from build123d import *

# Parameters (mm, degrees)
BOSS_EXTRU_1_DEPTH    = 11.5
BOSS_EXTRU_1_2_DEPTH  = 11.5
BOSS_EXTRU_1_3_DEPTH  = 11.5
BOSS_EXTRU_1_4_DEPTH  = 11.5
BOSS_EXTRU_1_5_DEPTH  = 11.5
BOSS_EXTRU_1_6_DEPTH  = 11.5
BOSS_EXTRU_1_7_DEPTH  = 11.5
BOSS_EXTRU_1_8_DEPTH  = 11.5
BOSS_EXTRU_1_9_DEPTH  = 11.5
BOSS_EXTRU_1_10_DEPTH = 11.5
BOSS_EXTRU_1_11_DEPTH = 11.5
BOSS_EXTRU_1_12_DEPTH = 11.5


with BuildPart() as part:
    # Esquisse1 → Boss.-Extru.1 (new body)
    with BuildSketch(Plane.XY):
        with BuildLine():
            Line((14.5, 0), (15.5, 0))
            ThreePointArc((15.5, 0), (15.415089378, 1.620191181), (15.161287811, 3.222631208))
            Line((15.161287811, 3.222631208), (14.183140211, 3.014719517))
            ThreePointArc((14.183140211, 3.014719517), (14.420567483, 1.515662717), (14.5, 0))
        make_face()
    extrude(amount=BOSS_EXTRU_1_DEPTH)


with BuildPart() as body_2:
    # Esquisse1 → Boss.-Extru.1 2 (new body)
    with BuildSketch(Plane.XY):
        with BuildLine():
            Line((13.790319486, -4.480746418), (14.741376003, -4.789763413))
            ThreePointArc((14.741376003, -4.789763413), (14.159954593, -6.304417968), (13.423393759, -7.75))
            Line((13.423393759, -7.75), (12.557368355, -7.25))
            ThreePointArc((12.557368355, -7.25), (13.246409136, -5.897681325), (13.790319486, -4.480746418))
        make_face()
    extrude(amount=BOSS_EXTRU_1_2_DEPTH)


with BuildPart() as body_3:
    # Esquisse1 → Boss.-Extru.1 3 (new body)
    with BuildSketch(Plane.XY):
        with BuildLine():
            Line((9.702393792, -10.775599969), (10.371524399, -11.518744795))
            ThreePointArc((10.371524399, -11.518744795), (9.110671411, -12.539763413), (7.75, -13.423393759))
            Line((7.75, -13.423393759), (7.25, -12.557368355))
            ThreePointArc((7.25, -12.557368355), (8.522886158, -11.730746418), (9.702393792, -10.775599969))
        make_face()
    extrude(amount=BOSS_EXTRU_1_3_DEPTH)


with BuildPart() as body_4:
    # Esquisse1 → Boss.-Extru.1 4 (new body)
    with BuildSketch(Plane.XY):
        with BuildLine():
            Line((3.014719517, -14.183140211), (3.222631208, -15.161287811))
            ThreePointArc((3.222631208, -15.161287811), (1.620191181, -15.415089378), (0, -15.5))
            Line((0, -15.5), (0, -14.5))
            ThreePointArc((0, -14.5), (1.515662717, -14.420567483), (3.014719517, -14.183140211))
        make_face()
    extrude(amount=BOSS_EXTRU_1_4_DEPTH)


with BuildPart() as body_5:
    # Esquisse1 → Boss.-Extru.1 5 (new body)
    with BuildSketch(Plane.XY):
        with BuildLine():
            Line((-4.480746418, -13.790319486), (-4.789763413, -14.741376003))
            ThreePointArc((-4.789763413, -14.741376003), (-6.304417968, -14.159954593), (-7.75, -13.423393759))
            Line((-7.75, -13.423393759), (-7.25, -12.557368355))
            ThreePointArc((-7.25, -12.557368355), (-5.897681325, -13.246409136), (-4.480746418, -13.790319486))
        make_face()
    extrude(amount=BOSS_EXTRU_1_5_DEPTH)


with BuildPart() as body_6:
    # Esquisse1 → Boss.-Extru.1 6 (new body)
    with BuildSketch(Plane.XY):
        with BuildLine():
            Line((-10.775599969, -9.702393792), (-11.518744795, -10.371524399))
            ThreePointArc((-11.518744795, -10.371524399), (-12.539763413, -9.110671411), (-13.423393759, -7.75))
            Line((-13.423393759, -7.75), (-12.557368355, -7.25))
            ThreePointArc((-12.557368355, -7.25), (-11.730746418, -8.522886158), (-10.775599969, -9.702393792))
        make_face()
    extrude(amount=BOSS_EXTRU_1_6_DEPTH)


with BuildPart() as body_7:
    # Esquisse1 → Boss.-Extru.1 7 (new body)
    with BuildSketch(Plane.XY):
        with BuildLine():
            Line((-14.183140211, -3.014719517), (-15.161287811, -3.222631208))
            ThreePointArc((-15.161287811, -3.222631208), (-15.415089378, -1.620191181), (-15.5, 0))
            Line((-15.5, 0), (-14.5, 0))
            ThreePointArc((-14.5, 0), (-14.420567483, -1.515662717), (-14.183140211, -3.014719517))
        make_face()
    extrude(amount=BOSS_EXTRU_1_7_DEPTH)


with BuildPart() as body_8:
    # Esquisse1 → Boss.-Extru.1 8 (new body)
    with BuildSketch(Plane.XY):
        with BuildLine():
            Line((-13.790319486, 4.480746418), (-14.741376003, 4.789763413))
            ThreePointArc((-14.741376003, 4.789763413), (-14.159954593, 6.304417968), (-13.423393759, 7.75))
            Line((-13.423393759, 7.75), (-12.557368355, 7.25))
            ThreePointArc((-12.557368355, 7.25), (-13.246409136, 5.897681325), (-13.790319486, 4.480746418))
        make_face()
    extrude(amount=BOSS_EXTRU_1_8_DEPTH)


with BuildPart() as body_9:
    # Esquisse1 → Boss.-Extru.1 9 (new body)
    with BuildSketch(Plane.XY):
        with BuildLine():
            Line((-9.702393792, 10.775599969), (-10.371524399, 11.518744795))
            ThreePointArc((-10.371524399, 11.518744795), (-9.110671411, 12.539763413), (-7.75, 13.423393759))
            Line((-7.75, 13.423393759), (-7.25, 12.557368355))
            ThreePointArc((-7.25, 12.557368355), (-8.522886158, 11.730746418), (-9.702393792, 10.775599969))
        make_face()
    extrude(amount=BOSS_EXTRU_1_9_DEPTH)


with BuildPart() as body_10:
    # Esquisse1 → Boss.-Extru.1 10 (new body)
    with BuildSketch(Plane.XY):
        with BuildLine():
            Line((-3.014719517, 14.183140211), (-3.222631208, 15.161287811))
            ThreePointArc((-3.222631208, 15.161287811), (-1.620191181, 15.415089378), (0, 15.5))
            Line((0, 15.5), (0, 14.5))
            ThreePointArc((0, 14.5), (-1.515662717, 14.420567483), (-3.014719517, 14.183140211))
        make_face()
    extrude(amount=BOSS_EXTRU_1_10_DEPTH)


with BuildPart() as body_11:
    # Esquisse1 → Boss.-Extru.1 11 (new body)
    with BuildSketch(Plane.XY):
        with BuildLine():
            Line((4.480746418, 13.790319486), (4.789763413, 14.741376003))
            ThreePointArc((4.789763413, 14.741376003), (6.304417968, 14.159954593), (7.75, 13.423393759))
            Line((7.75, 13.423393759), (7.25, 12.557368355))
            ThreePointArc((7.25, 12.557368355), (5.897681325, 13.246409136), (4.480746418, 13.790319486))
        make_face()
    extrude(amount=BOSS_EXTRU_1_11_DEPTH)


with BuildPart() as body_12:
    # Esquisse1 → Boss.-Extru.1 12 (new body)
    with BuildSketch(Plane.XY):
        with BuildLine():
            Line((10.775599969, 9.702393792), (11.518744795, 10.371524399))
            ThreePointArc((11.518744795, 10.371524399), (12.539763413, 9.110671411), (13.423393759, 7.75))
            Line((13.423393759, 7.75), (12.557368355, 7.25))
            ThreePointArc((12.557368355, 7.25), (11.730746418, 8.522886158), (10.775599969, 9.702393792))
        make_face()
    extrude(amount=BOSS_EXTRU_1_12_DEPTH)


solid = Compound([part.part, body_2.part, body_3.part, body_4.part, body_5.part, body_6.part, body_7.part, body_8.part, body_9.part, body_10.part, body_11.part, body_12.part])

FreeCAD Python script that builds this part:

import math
import FreeCAD as App
import Part
import Sketcher
Q = App.Units.Quantity

doc = App.newDocument("Part")
body = doc.addObject("PartDesign::Body", "Body")

# Sketch on XY plane
sketch1 = body.newObject("Sketcher::SketchObject", "Sketch")
sketch1.AttachmentSupport = (doc.getObject("XY_Plane"), [""])
sketch1.MapMode = "FlatFace"
sketch1.addGeometry(Part.LineSegment(App.Vector(14.5, 0, 0), App.Vector(15.5, 0, 0)), False)
sketch1.addGeometry(Part.ArcOfCircle(Part.Circle(App.Vector(0, 0, 0), App.Vector(0, 0, 1), 15.5), math.radians(0), math.radians(12)), False)
sketch1.addGeometry(Part.LineSegment(App.Vector(15.2, 3.2, 0), App.Vector(14.2, 3, 0)), False)
sketch1.addGeometry(Part.ArcOfCircle(Part.Circle(App.Vector(0, 0, 0), App.Vector(0, 0, 1), 14.5), math.radians(0), math.radians(12)), False)
sketch1.addConstraint(Sketcher.Constraint("Coincident", 0, 2, 1, 1))
sketch1.addConstraint(Sketcher.Constraint("Coincident", 1, 2, 2, 1))
sketch1.addConstraint(Sketcher.Constraint("Coincident", 2, 2, 3, 2))
sketch1.addConstraint(Sketcher.Constraint("Coincident", 3, 1, 0, 1))
sketch1.addConstraint(Sketcher.Constraint("Horizontal", 0))
sketch1.addConstraint(Sketcher.Constraint("Coincident", 1, 3, -1, 1))
sketch1.addConstraint(Sketcher.Constraint("Coincident", 3, 3, -1, 1))
sketch1.addConstraint(Sketcher.Constraint("PointOnObject", 0, 2, -1))
sketch1.addConstraint(Sketcher.Constraint("Radius", 1, 15.5))
sketch1.addConstraint(Sketcher.Constraint("Radius", 3, 14.5))
sketch1.addConstraint(Sketcher.Constraint("Angle", 2, Q("-168 deg")))
sketch1.addConstraint(Sketcher.Constraint("DistanceY", -1, 1, 1, 2, 3.222631))
pad1 = body.newObject("PartDesign::Pad", "Pad")
pad1.Profile = sketch1
pad1.Length = 11.5
body2 = doc.addObject("PartDesign::Body", "Body001")

# Sketch on XY plane
sketch2 = body2.newObject("Sketcher::SketchObject", "Sketch001")
sketch2.AttachmentSupport = (doc.getObject("XY_Plane001"), [""])
sketch2.MapMode = "FlatFace"
sketch2.addGeometry(Part.LineSegment(App.Vector(14.7, -4.8, 0), App.Vector(13.8, -4.5, 0)), False)
sketch2.addGeometry(Part.ArcOfCircle(Part.Circle(App.Vector(0, 0, 0), App.Vector(0, 0, 1), 14.5), math.radians(-30), math.radians(-18)), False)
sketch2.addGeometry(Part.LineSegment(App.Vector(12.6, -7.2, 0), App.Vector(13.4, -7.8, 0)), False)
sketch2.addGeometry(Part.ArcOfCircle(Part.Circle(App.Vector(0, 0, 0), App.Vector(0, 0, 1), 15.5), math.radians(-30), math.radians(-18)), False)
sketch2.addConstraint(Sketcher.Constraint("Coincident", 0, 2, 1, 2))
sketch2.addConstraint(Sketcher.Constraint("Coincident", 1, 1, 2, 1))
sketch2.addConstraint(Sketcher.Constraint("Coincident", 2, 2, 3, 1))
sketch2.addConstraint(Sketcher.Constraint("Coincident", 3, 2, 0, 1))
sketch2.addConstraint(Sketcher.Constraint("Coincident", 1, 3, -1, 1))
sketch2.addConstraint(Sketcher.Constraint("Coincident", 3, 3, -1, 1))
sketch2.addConstraint(Sketcher.Constraint("Radius", 1, 14.5))
sketch2.addConstraint(Sketcher.Constraint("Radius", 3, 15.5))
sketch2.addConstraint(Sketcher.Constraint("Angle", 0, Q("162 deg")))
sketch2.addConstraint(Sketcher.Constraint("Angle", 2, Q("-30 deg")))
sketch2.addConstraint(Sketcher.Constraint("DistanceY", 1, 1, -1, 1, 7.25))
sketch2.addConstraint(Sketcher.Constraint("DistanceX", -1, 1, 0, 2, 13.790319))
pad2 = body2.newObject("PartDesign::Pad", "Pad001")
pad2.Profile = sketch2
pad2.Length = 11.5
body3 = doc.addObject("PartDesign::Body", "Body002")

# Sketch on XY plane
sketch3 = body3.newObject("Sketcher::SketchObject", "Sketch002")
sketch3.AttachmentSupport = (doc.getObject("XY_Plane002"), [""])
sketch3.MapMode = "FlatFace"
sketch3.addGeometry(Part.LineSegment(App.Vector(10.4, -11.5, 0), App.Vector(9.7, -10.8, 0)), False)
sketch3.addGeometry(Part.ArcOfCircle(Part.Circle(App.Vector(0, 0, 0), App.Vector(0, 0, 1), 14.5), math.radians(-60), math.radians(-48)), False)
sketch3.addGeometry(Part.LineSegment(App.Vector(7.2, -12.6, 0), App.Vector(7.8, -13.4, 0)), False)
sketch3.addGeometry(Part.ArcOfCircle(Part.Circle(App.Vector(0, 0, 0), App.Vector(0, 0, 1), 15.5), math.radians(-60), math.radians(-48)), False)
sketch3.addConstraint(Sketcher.Constraint("Coincident", 0, 2, 1, 2))
sketch3.addConstraint(Sketcher.Constraint("Coincident", 1, 1, 2, 1))
sketch3.addConstraint(Sketcher.Constraint("Coincident", 2, 2, 3, 1))
sketch3.addConstraint(Sketcher.Constraint("Coincident", 3, 2, 0, 1))
sketch3.addConstraint(Sketcher.Constraint("Coincident", 1, 3, -1, 1))
sketch3.addConstraint(Sketcher.Constraint("Coincident", 3, 3, -1, 1))
sketch3.addConstraint(Sketcher.Constraint("Radius", 1, 14.5))
sketch3.addConstraint(Sketcher.Constraint("Radius", 3, 15.5))
sketch3.addConstraint(Sketcher.Constraint("Angle", 0, Q("132 deg")))
sketch3.addConstraint(Sketcher.Constraint("Angle", 2, Q("-60 deg")))
sketch3.addConstraint(Sketcher.Constraint("DistanceX", -1, 1, 1, 1, 7.25))
sketch3.addConstraint(Sketcher.Constraint("DistanceY", 0, 2, -1, 1, 10.7756))
pad3 = body3.newObject("PartDesign::Pad", "Pad002")
pad3.Profile = sketch3
pad3.Length = 11.5
body4 = doc.addObject("PartDesign::Body", "Body003")

# Sketch on XY plane
sketch4 = body4.newObject("Sketcher::SketchObject", "Sketch003")
sketch4.AttachmentSupport = (doc.getObject("XY_Plane003"), [""])
sketch4.MapMode = "FlatFace"
sketch4.addGeometry(Part.LineSegment(App.Vector(3.2, -15.2, 0), App.Vector(3, -14.2, 0)), False)
sketch4.addGeometry(Part.ArcOfCircle(Part.Circle(App.Vector(0, 0, 0), App.Vector(0, 0, 1), 14.5), math.radians(-90), math.radians(-78)), False)
sketch4.addGeometry(Part.LineSegment(App.Vector(0, -14.5, 0), App.Vector(0, -15.5, 0)), False)
sketch4.addGeometry(Part.ArcOfCircle(Part.Circle(App.Vector(0, 0, 0), App.Vector(0, 0, 1), 15.5), math.radians(-90), math.radians(-78)), False)
sketch4.addConstraint(Sketcher.Constraint("Coincident", 0, 2, 1, 2))
sketch4.addConstraint(Sketcher.Constraint("Coincident", 1, 1, 2, 1))
sketch4.addConstraint(Sketcher.Constraint("Coincident", 2, 2, 3, 1))
sketch4.addConstraint(Sketcher.Constraint("Coincident", 3, 2, 0, 1))
sketch4.addConstraint(Sketcher.Constraint("Vertical", 2))
sketch4.addConstraint(Sketcher.Constraint("Coincident", 1, 3, -1, 1))
sketch4.addConstraint(Sketcher.Constraint("Coincident", 3, 3, -1, 1))
sketch4.addConstraint(Sketcher.Constraint("PointOnObject", 1, 1, -2))
sketch4.addConstraint(Sketcher.Constraint("Radius", 1, 14.5))
sketch4.addConstraint(Sketcher.Constraint("Radius", 3, 15.5))
sketch4.addConstraint(Sketcher.Constraint("Angle", 0, Q("102 deg")))
sketch4.addConstraint(Sketcher.Constraint("DistanceX", -1, 1, 0, 2, 3.01472))
pad4 = body4.newObject("PartDesign::Pad", "Pad003")
pad4.Profile = sketch4
pad4.Length = 11.5
body5 = doc.addObject("PartDesign::Body", "Body004")

# Sketch on XY plane
sketch5 = body5.newObject("Sketcher::SketchObject", "Sketch004")
sketch5.AttachmentSupport = (doc.getObject("XY_Plane004"), [""])
sketch5.MapMode = "FlatFace"
sketch5.addGeometry(Part.LineSegment(App.Vector(-4.8, -14.7, 0), App.Vector(-4.5, -13.8, 0)), False)
sketch5.addGeometry(Part.ArcOfCircle(Part.Circle(App.Vector(0, 0, 0), App.Vector(0, 0, 1), 14.5), math.radians(-120), math.radians(-108)), False)
sketch5.addGeometry(Part.LineSegment(App.Vector(-7.2, -12.6, 0), App.Vector(-7.8, -13.4, 0)), False)
sketch5.addGeometry(Part.ArcOfCircle(Part.Circle(App.Vector(0, 0, 0), App.Vector(0, 0, 1), 15.5), math.radians(-120), math.radians(-108)), False)
sketch5.addConstraint(Sketcher.Constraint("Coincident", 0, 2, 1, 2))
sketch5.addConstraint(Sketcher.Constraint("Coincident", 1, 1, 2, 1))
sketch5.addConstraint(Sketcher.Constraint("Coincident", 2, 2, 3, 1))
sketch5.addConstraint(Sketcher.Constraint("Coincident", 3, 2, 0, 1))
sketch5.addConstraint(Sketcher.Constraint("Coincident", 1, 3, -1, 1))
sketch5.addConstraint(Sketcher.Constraint("Coincident", 3, 3, -1, 1))
sketch5.addConstraint(Sketcher.Constraint("Radius", 1, 14.5))
sketch5.addConstraint(Sketcher.Constraint("Radius", 3, 15.5))
sketch5.addConstraint(Sketcher.Constraint("Angle", 0, Q("72 deg")))
sketch5.addConstraint(Sketcher.Constraint("Angle", 2, Q("-120 deg")))
sketch5.addConstraint(Sketcher.Constraint("DistanceX", 1, 1, -1, 1, 7.25))
sketch5.addConstraint(Sketcher.Constraint("DistanceY", 0, 2, -1, 1, 13.790319))
pad5 = body5.newObject("PartDesign::Pad", "Pad004")
pad5.Profile = sketch5
pad5.Length = 11.5
body6 = doc.addObject("PartDesign::Body", "Body005")

# Sketch on XY plane
sketch6 = body6.newObject("Sketcher::SketchObject", "Sketch005")
sketch6.AttachmentSupport = (doc.getObject("XY_Plane005"), [""])
sketch6.MapMode = "FlatFace"
sketch6.addGeometry(Part.LineSegment(App.Vector(-11.5, -10.4, 0), App.Vector(-10.8, -9.7, 0)), False)
sketch6.addGeometry(Part.ArcOfCircle(Part.Circle(App.Vector(0, 0, 0), App.Vector(0, 0, 1), 14.5), math.radians(-150), math.radians(-138)), False)
sketch6.addGeometry(Part.LineSegment(App.Vector(-12.6, -7.2, 0), App.Vector(-13.4, -7.8, 0)), False)
sketch6.addGeometry(Part.ArcOfCircle(Part.Circle(App.Vector(0, 0, 0), App.Vector(0, 0, 1), 15.5), math.radians(-150), math.radians(-138)), False)
sketch6.addConstraint(Sketcher.Constraint("Coincident", 0, 2, 1, 2))
sketch6.addConstraint(Sketcher.Constraint("Coincident", 1, 1, 2, 1))
sketch6.addConstraint(Sketcher.Constraint("Coincident", 2, 2, 3, 1))
sketch6.addConstraint(Sketcher.Constraint("Coincident", 3, 2, 0, 1))
sketch6.addConstraint(Sketcher.Constraint("Coincident", 1, 3, -1, 1))
sketch6.addConstraint(Sketcher.Constraint("Coincident", 3, 3, -1, 1))
sketch6.addConstraint(Sketcher.Constraint("Radius", 1, 14.5))
sketch6.addConstraint(Sketcher.Constraint("Radius", 3, 15.5))
sketch6.addConstraint(Sketcher.Constraint("Angle", 0, Q("42 deg")))
sketch6.addConstraint(Sketcher.Constraint("Angle", 2, Q("-150 deg")))
sketch6.addConstraint(Sketcher.Constraint("DistanceY", 1, 1, -1, 1, 7.25))
sketch6.addConstraint(Sketcher.Constraint("DistanceX", 0, 2, -1, 1, 10.7756))
pad6 = body6.newObject("PartDesign::Pad", "Pad005")
pad6.Profile = sketch6
pad6.Length = 11.5
body7 = doc.addObject("PartDesign::Body", "Body006")

# Sketch on XY plane
sketch7 = body7.newObject("Sketcher::SketchObject", "Sketch006")
sketch7.AttachmentSupport = (doc.getObject("XY_Plane006"), [""])
sketch7.MapMode = "FlatFace"
sketch7.addGeometry(Part.LineSegment(App.Vector(-15.2, -3.2, 0), App.Vector(-14.2, -3, 0)), False)
sketch7.addGeometry(Part.ArcOfCircle(Part.Circle(App.Vector(0, 0, 0), App.Vector(0, 0, 1), 14.5), math.radians(180), math.radians(192)), False)
sketch7.addGeometry(Part.LineSegment(App.Vector(-14.5, 0, 0), App.Vector(-15.5, 0, 0)), False)
sketch7.addGeometry(Part.ArcOfCircle(Part.Circle(App.Vector(0, 0, 0), App.Vector(0, 0, 1), 15.5), math.radians(-180), math.radians(-168)), False)
sketch7.addConstraint(Sketcher.Constraint("Coincident", 0, 2, 1, 2))
sketch7.addConstraint(Sketcher.Constraint("Coincident", 1, 1, 2, 1))
sketch7.addConstraint(Sketcher.Constraint("Coincident", 2, 2, 3, 1))
sketch7.addConstraint(Sketcher.Constraint("Coincident", 3, 2, 0, 1))
sketch7.addConstraint(Sketcher.Constraint("Horizontal", 2))
sketch7.addConstraint(Sketcher.Constraint("Coincident", 1, 3, -1, 1))
sketch7.addConstraint(Sketcher.Constraint("Coincident", 3, 3, -1, 1))
sketch7.addConstraint(Sketcher.Constraint("PointOnObject", 1, 1, -1))
sketch7.addConstraint(Sketcher.Constraint("Radius", 1, 14.5))
sketch7.addConstraint(Sketcher.Constraint("Radius", 3, 15.5))
sketch7.addConstraint(Sketcher.Constraint("Angle", 0, Q("12 deg")))
sketch7.addConstraint(Sketcher.Constraint("DistanceX", 0, 2, -1, 1, 14.18314))
pad7 = body7.newObject("PartDesign::Pad", "Pad006")
pad7.Profile = sketch7
pad7.Length = 11.5
body8 = doc.addObject("PartDesign::Body", "Body007")

# Sketch on XY plane
sketch8 = body8.newObject("Sketcher::SketchObject", "Sketch007")
sketch8.AttachmentSupport = (doc.getObject("XY_Plane007"), [""])
sketch8.MapMode = "FlatFace"
sketch8.addGeometry(Part.LineSegment(App.Vector(-14.7, 4.8, 0), App.Vector(-13.8, 4.5, 0)), False)
sketch8.addGeometry(Part.ArcOfCircle(Part.Circle(App.Vector(0, 0, 0), App.Vector(0, 0, 1), 14.5), math.radians(150), math.radians(162)), False)
sketch8.addGeometry(Part.LineSegment(App.Vector(-12.6, 7.2, 0), App.Vector(-13.4, 7.8, 0)), False)
sketch8.addGeometry(Part.ArcOfCircle(Part.Circle(App.Vector(0, 0, 0), App.Vector(0, 0, 1), 15.5), math.radians(150), math.radians(162)), False)
sketch8.addConstraint(Sketcher.Constraint("Coincident", 0, 2, 1, 2))
sketch8.addConstraint(Sketcher.Constraint("Coincident", 1, 1, 2, 1))
sketch8.addConstraint(Sketcher.Constraint("Coincident", 2, 2, 3, 1))
sketch8.addConstraint(Sketcher.Constraint("Coincident", 3, 2, 0, 1))
sketch8.addConstraint(Sketcher.Constraint("Coincident", 1, 3, -1, 1))
sketch8.addConstraint(Sketcher.Constraint("Coincident", 3, 3, -1, 1))
sketch8.addConstraint(Sketcher.Constraint("Radius", 1, 14.5))
sketch8.addConstraint(Sketcher.Constraint("Radius", 3, 15.5))
sketch8.addConstraint(Sketcher.Constraint("Angle", 0, Q("-18 deg")))
sketch8.addConstraint(Sketcher.Constraint("Angle", 2, Q("150 deg")))
sketch8.addConstraint(Sketcher.Constraint("DistanceY", -1, 1, 1, 1, 7.25))
sketch8.addConstraint(Sketcher.Constraint("DistanceX", 0, 2, -1, 1, 13.790319))
pad8 = body8.newObject("PartDesign::Pad", "Pad007")
pad8.Profile = sketch8
pad8.Length = 11.5
body9 = doc.addObject("PartDesign::Body", "Body008")

# Sketch on XY plane
sketch9 = body9.newObject("Sketcher::SketchObject", "Sketch008")
sketch9.AttachmentSupport = (doc.getObject("XY_Plane008"), [""])
sketch9.MapMode = "FlatFace"
sketch9.addGeometry(Part.LineSegment(App.Vector(-10.4, 11.5, 0), App.Vector(-9.7, 10.8, 0)), False)
sketch9.addGeometry(Part.ArcOfCircle(Part.Circle(App.Vector(0, 0, 0), App.Vector(0, 0, 1), 14.5), math.radians(120), math.radians(132)), False)
sketch9.addGeometry(Part.LineSegment(App.Vector(-7.2, 12.6, 0), App.Vector(-7.8, 13.4, 0)), False)
sketch9.addGeometry(Part.ArcOfCircle(Part.Circle(App.Vector(0, 0, 0), App.Vector(0, 0, 1), 15.5), math.radians(120), math.radians(132)), False)
sketch9.addConstraint(Sketcher.Constraint("Coincident", 0, 2, 1, 2))
sketch9.addConstraint(Sketcher.Constraint("Coincident", 1, 1, 2, 1))
sketch9.addConstraint(Sketcher.Constraint("Coincident", 2, 2, 3, 1))
sketch9.addConstraint(Sketcher.Constraint("Coincident", 3, 2, 0, 1))
sketch9.addConstraint(Sketcher.Constraint("Coincident", 1, 3, -1, 1))
sketch9.addConstraint(Sketcher.Constraint("Coincident", 3, 3, -1, 1))
sketch9.addConstraint(Sketcher.Constraint("Radius", 1, 14.5))
sketch9.addConstraint(Sketcher.Constraint("Radius", 3, 15.5))
sketch9.addConstraint(Sketcher.Constraint("Angle", 0, Q("-48 deg")))
sketch9.addConstraint(Sketcher.Constraint("Angle", 2, Q("120 deg")))
sketch9.addConstraint(Sketcher.Constraint("DistanceX", 1, 1, -1, 1, 7.25))
sketch9.addConstraint(Sketcher.Constraint("DistanceY", -1, 1, 0, 2, 10.7756))
pad9 = body9.newObject("PartDesign::Pad", "Pad008")
pad9.Profile = sketch9
pad9.Length = 11.5
body10 = doc.addObject("PartDesign::Body", "Body009")

# Sketch on XY plane
sketch10 = body10.newObject("Sketcher::SketchObject", "Sketch009")
sketch10.AttachmentSupport = (doc.getObject("XY_Plane009"), [""])
sketch10.MapMode = "FlatFace"
sketch10.addGeometry(Part.LineSegment(App.Vector(-3.2, 15.2, 0), App.Vector(-3, 14.2, 0)), False)
sketch10.addGeometry(Part.ArcOfCircle(Part.Circle(App.Vector(0, 0, 0), App.Vector(0, 0, 1), 14.5), math.radians(90), math.radians(102)), False)
sketch10.addGeometry(Part.LineSegment(App.Vector(0, 14.5, 0), App.Vector(0, 15.5, 0)), False)
sketch10.addGeometry(Part.ArcOfCircle(Part.Circle(App.Vector(0, 0, 0), App.Vector(0, 0, 1), 15.5), math.radians(90), math.radians(102)), False)
sketch10.addConstraint(Sketcher.Constraint("Coincident", 0, 2, 1, 2))
sketch10.addConstraint(Sketcher.Constraint("Coincident", 1, 1, 2, 1))
sketch10.addConstraint(Sketcher.Constraint("Coincident", 2, 2, 3, 1))
sketch10.addConstraint(Sketcher.Constraint("Coincident", 3, 2, 0, 1))
sketch10.addConstraint(Sketcher.Constraint("Vertical", 2))
sketch10.addConstraint(Sketcher.Constraint("Coincident", 1, 3, -1, 1))
sketch10.addConstraint(Sketcher.Constraint("Coincident", 3, 3, -1, 1))
sketch10.addConstraint(Sketcher.Constraint("PointOnObject", 1, 1, -2))
sketch10.addConstraint(Sketcher.Constraint("Radius", 1, 14.5))
sketch10.addConstraint(Sketcher.Constraint("Radius", 3, 15.5))
sketch10.addConstraint(Sketcher.Constraint("Angle", 0, Q("-78 deg")))
sketch10.addConstraint(Sketcher.Constraint("DistanceX", 0, 2, -1, 1, 3.01472))
pad10 = body10.newObject("PartDesign::Pad", "Pad009")
pad10.Profile = sketch10
pad10.Length = 11.5
body11 = doc.addObject("PartDesign::Body", "Body010")

# Sketch on XY plane
sketch11 = body11.newObject("Sketcher::SketchObject", "Sketch010")
sketch11.AttachmentSupport = (doc.getObject("XY_Plane010"), [""])
sketch11.MapMode = "FlatFace"
sketch11.addGeometry(Part.LineSegment(App.Vector(4.8, 14.7, 0), App.Vector(4.5, 13.8, 0)), False)
sketch11.addGeometry(Part.ArcOfCircle(Part.Circle(App.Vector(0, 0, 0), App.Vector(0, 0, 1), 14.5), math.radians(60), math.radians(72)), False)
sketch11.addGeometry(Part.LineSegment(App.Vector(7.2, 12.6, 0), App.Vector(7.8, 13.4, 0)), False)
sketch11.addGeometry(Part.ArcOfCircle(Part.Circle(App.Vector(0, 0, 0), App.Vector(0, 0, 1), 15.5), math.radians(60), math.radians(72)), False)
sketch11.addConstraint(Sketcher.Constraint("Coincident", 0, 2, 1, 2))
sketch11.addConstraint(Sketcher.Constraint("Coincident", 1, 1, 2, 1))
sketch11.addConstraint(Sketcher.Constraint("Coincident", 2, 2, 3, 1))
sketch11.addConstraint(Sketcher.Constraint("Coincident", 3, 2, 0, 1))
sketch11.addConstraint(Sketcher.Constraint("Coincident", 1, 3, -1, 1))
sketch11.addConstraint(Sketcher.Constraint("Coincident", 3, 3, -1, 1))
sketch11.addConstraint(Sketcher.Constraint("Radius", 1, 14.5))
sketch11.addConstraint(Sketcher.Constraint("Radius", 3, 15.5))
sketch11.addConstraint(Sketcher.Constraint("Angle", 0, Q("-108 deg")))
sketch11.addConstraint(Sketcher.Constraint("Angle", 2, Q("60 deg")))
sketch11.addConstraint(Sketcher.Constraint("DistanceX", -1, 1, 1, 1, 7.25))
sketch11.addConstraint(Sketcher.Constraint("DistanceY", -1, 1, 0, 2, 13.790319))
pad11 = body11.newObject("PartDesign::Pad", "Pad010")
pad11.Profile = sketch11
pad11.Length = 11.5
body12 = doc.addObject("PartDesign::Body", "Body011")

# Sketch on XY plane
sketch12 = body12.newObject("Sketcher::SketchObject", "Sketch011")
sketch12.AttachmentSupport = (doc.getObject("XY_Plane011"), [""])
sketch12.MapMode = "FlatFace"
sketch12.addGeometry(Part.LineSegment(App.Vector(11.5, 10.4, 0), App.Vector(10.8, 9.7, 0)), False)
sketch12.addGeometry(Part.ArcOfCircle(Part.Circle(App.Vector(0, 0, 0), App.Vector(0, 0, 1), 14.5), math.radians(30), math.radians(42)), False)
sketch12.addGeometry(Part.LineSegment(App.Vector(12.6, 7.2, 0), App.Vector(13.4, 7.8, 0)), False)
sketch12.addGeometry(Part.ArcOfCircle(Part.Circle(App.Vector(0, 0, 0), App.Vector(0, 0, 1), 15.5), math.radians(30), math.radians(42)), False)
sketch12.addConstraint(Sketcher.Constraint("Coincident", 0, 2, 1, 2))
sketch12.addConstraint(Sketcher.Constraint("Coincident", 1, 1, 2, 1))
sketch12.addConstraint(Sketcher.Constraint("Coincident", 2, 2, 3, 1))
sketch12.addConstraint(Sketcher.Constraint("Coincident", 3, 2, 0, 1))
sketch12.addConstraint(Sketcher.Constraint("Coincident", 1, 3, -1, 1))
sketch12.addConstraint(Sketcher.Constraint("Coincident", 3, 3, -1, 1))
sketch12.addConstraint(Sketcher.Constraint("Radius", 1, 14.5))
sketch12.addConstraint(Sketcher.Constraint("Radius", 3, 15.5))
sketch12.addConstraint(Sketcher.Constraint("Angle", 0, Q("-138 deg")))
sketch12.addConstraint(Sketcher.Constraint("Angle", 2, Q("30 deg")))
sketch12.addConstraint(Sketcher.Constraint("DistanceY", -1, 1, 1, 1, 7.25))
sketch12.addConstraint(Sketcher.Constraint("DistanceX", -1, 1, 0, 2, 10.7756))
pad12 = body12.newObject("PartDesign::Pad", "Pad011")
pad12.Profile = sketch12
pad12.Length = 11.5

doc.recompute()
